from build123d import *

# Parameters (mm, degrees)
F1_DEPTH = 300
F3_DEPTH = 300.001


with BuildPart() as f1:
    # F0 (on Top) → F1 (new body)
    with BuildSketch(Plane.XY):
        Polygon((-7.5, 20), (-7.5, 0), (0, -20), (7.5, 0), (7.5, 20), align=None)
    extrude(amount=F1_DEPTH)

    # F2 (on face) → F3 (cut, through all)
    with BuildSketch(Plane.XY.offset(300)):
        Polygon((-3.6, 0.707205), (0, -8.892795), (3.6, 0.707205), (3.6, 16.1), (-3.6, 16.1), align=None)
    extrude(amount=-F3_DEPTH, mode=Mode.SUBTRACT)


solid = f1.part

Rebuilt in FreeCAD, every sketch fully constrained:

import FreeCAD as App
import Part
import Sketcher
from FreeCAD import Vector

doc = App.newDocument("Part")
body = doc.addObject("PartDesign::Body", "Body")

# Sketch on XY plane
sketch1 = body.newObject("Sketcher::SketchObject", "Sketch")
sketch1.AttachmentSupport = (doc.getObject("XY_Plane"), [""])
sketch1.MapMode = "FlatFace"
sketch1.addGeometry([
    Part.LineSegment(Vector(-8, 20, 0), Vector(-8, 0, 0)),  # 0
    Part.LineSegment(Vector(-8, 0, 0), Vector(0, -20, 0)),  # 1
    Part.LineSegment(Vector(0, -20, 0), Vector(8, 0, 0)),  # 2
    Part.LineSegment(Vector(8, 0, 0), Vector(8, 20, 0)),  # 3
    Part.LineSegment(Vector(8, 20, 0), Vector(-8, 20, 0)),  # 4
], False)
sketch1.addConstraint([
    Sketcher.Constraint("Coincident", 0, 2, 1, 1),
    Sketcher.Constraint("Coincident", 1, 2, 2, 1),
    Sketcher.Constraint("Coincident", 2, 2, 3, 1),
    Sketcher.Constraint("Coincident", 3, 2, 4, 1),
    Sketcher.Constraint("Coincident", 4, 2, 0, 1),
    Sketcher.Constraint("Vertical", 0),
    Sketcher.Constraint("Vertical", 3),
    Sketcher.Constraint("Horizontal", 4),
    Sketcher.Constraint("Symmetric", 0, 2, 2, 2, -1, 1),
    Sketcher.Constraint("PointOnObject", 0, 2, -1),
    Sketcher.Constraint("PointOnObject", 1, 2, -2),
    Sketcher.Constraint("DistanceX", 4, 2, 4, 1, 15.0),
    Sketcher.Constraint("DistanceY", 0, 2, 0, 1, 20.0),
    Sketcher.Constraint("DistanceY", 1, 2, -1, 1, 20.0),
])
pad1 = body.newObject("PartDesign::Pad", "Pad")
pad1.Profile = sketch1
pad1.Length = 300

# Sketch on XY plane
sketch2 = body.newObject("Sketcher::SketchObject", "Sketch001")
sketch2.AttachmentSupport = (doc.getObject("XY_Plane"), [""])
sketch2.MapMode = "FlatFace"
sketch2.AttachmentOffset = App.Placement(Vector(0, 0, 300), App.Rotation())
sketch2.addGeometry([
    Part.LineSegment(Vector(-4, 1, 0), Vector(0, -9, 0)),  # 0
    Part.LineSegment(Vector(0, -9, 0), Vector(4, 1, 0)),  # 1
    Part.LineSegment(Vector(4, 1, 0), Vector(4, 16, 0)),  # 2
    Part.LineSegment(Vector(4, 16, 0), Vector(-4, 16, 0)),  # 3
    Part.LineSegment(Vector(-4, 16, 0), Vector(-4, 1, 0)),  # 4
], False)
sketch2.addConstraint([
    Sketcher.Constraint("Coincident", 0, 2, 1, 1),
    Sketcher.Constraint("Coincident", 1, 2, 2, 1),
    Sketcher.Constraint("Coincident", 2, 2, 3, 1),
    Sketcher.Constraint("Coincident", 3, 2, 4, 1),
    Sketcher.Constraint("Coincident", 4, 2, 0, 1),
    Sketcher.Constraint("Vertical", 2),
    Sketcher.Constraint("Horizontal", 3),
    Sketcher.Constraint("Vertical", 4),
    Sketcher.Constraint("Symmetric", 1, 2, 4, 2, -2),
    Sketcher.Constraint("PointOnObject", 0, 2, -2),
    Sketcher.Constraint("DistanceX", 3, 2, 3, 1, 7.2),
    Sketcher.Constraint("DistanceY", -1, 1, 2, 2, 16.1),
    Sketcher.Constraint("DistanceY", 0, 2, 1, 2, 9.6),
    Sketcher.Constraint("DistanceY", 2, 1, 2, 2, 15.392795),
])
pocket1 = body.newObject("PartDesign::Pocket", "Pocket")
pocket1.Profile = sketch2
pocket1.Type = "ThroughAll"

doc.recompute()
